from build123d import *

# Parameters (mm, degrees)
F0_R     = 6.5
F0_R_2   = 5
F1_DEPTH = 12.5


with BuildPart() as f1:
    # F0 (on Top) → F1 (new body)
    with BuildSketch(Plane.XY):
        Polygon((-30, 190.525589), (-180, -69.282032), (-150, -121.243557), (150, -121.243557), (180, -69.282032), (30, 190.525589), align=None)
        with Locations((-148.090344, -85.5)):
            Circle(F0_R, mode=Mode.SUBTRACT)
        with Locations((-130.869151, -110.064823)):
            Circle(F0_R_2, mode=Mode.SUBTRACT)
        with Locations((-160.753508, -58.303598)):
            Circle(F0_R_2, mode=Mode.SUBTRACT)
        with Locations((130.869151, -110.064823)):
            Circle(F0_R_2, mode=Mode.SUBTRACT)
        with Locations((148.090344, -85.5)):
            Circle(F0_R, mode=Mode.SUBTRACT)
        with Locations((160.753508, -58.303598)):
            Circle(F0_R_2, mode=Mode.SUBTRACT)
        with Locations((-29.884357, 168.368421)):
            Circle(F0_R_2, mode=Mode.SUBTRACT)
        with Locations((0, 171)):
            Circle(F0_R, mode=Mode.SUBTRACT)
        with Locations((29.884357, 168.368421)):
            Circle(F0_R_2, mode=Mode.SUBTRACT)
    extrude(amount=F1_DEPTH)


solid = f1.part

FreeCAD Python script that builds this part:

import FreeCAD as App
import Part
import Sketcher
Q = App.Units.Quantity

doc = App.newDocument("Part")
params = doc.addObject("Spreadsheet::Sheet", "Params")
for row, (alias, value) in enumerate([
    ("sketch1_diameter", "10 mm"),
    ("sketch1_diameter2", "13 mm"),
    ("sketch1_width", "300 mm"),
    ("sketch1_width2", "60 mm"),
    ("sketch1_length", "300 mm"),
    ("pad1_length", "12.5 mm"),
], start=1):
    params.set(f"A{row}", alias)
    params.set(f"B{row}", "=" + value)
    params.setAlias(f"B{row}", alias)

body = doc.addObject("PartDesign::Body", "Body")

# Sketch on XY plane
sketch1 = body.newObject("Sketcher::SketchObject", "Sketch")
sketch1.AttachmentSupport = (doc.getObject("XY_Plane"), [""])
sketch1.MapMode = "FlatFace"
sketch1.addGeometry([
    Part.LineSegment(App.Vector(-30, 190.525589, 0), App.Vector(-180, -69.282032, 0)),  # 0
    Part.LineSegment(App.Vector(-180, -69.282032, 0), App.Vector(-150, -121.243557, 0)),  # 1
    Part.LineSegment(App.Vector(-150, -121.243557, 0), App.Vector(150, -121.243557, 0)),  # 2
    Part.LineSegment(App.Vector(150, -121.243557, 0), App.Vector(180, -69.282032, 0)),  # 3
    Part.LineSegment(App.Vector(180, -69.282032, 0), App.Vector(30, 190.525589, 0)),  # 4
    Part.LineSegment(App.Vector(30, 190.525589, 0), App.Vector(-30, 190.525589, 0)),  # 5
    Part.Circle(App.Vector(-130.869151, -110.064823, 0), App.Vector(0, 0, 1), 5),  # 6
    Part.Circle(App.Vector(-148.090344, -85.5, 0), App.Vector(0, 0, 1), 6.5),  # 7
    Part.Circle(App.Vector(-160.753508, -58.303598, 0), App.Vector(0, 0, 1), 5),  # 8
    Part.Circle(App.Vector(130.869151, -110.064823, 0), App.Vector(0, 0, 1), 5),  # 9
    Part.Circle(App.Vector(148.090344, -85.5, 0), App.Vector(0, 0, 1), 6.5),  # 10
    Part.Circle(App.Vector(160.753508, -58.303598, 0), App.Vector(0, 0, 1), 5),  # 11
    Part.Circle(App.Vector(-29.884357, 168.368421, 0), App.Vector(0, 0, 1), 5),  # 12
    Part.Circle(App.Vector(0, 171, 0), App.Vector(0, 0, 1), 6.5),  # 13
    Part.Circle(App.Vector(29.884357, 168.368421, 0), App.Vector(0, 0, 1), 5),  # 14
], False)
sketch1.addConstraint([
    Sketcher.Constraint("Coincident", 0, 2, 1, 1),
    Sketcher.Constraint("Coincident", 1, 2, 2, 1),
    Sketcher.Constraint("Coincident", 2, 2, 3, 1),
    Sketcher.Constraint("Coincident", 3, 2, 4, 1),
    Sketcher.Constraint("Coincident", 4, 2, 5, 1),
    Sketcher.Constraint("Coincident", 5, 2, 0, 1),
    Sketcher.Constraint("Horizontal", 2),
    Sketcher.Constraint("Horizontal", 5),
    Sketcher.Constraint("Equal", 6, 8),
    Sketcher.Constraint("Equal", 8, 9),
    Sketcher.Constraint("Equal", 7, 10),
    Sketcher.Constraint("Equal", 9, 11),
    Sketcher.Constraint("Equal", 11, 12),
    Sketcher.Constraint("Equal", 10, 13),
    Sketcher.Constraint("Equal", 12, 14),
    Sketcher.Constraint("Symmetric", 6, 3, 9, 3, -2),
    Sketcher.Constraint("Symmetric", 7, 3, 10, 3, -2),
    Sketcher.Constraint("Symmetric", 8, 3, 11, 3, -2),
    Sketcher.Constraint("Symmetric", 12, 3, 14, 3, -2),
    Sketcher.Constraint("Symmetric", 0, 2, 3, 2, -2),
    Sketcher.Constraint("PointOnObject", 13, 3, -2),
    Sketcher.Constraint("Parallel", 0, 3),
    Sketcher.Constraint("Parallel", 1, 4),
    Sketcher.Constraint("Equal", 1, 3),
    Sketcher.Constraint("Diameter", 6, Q("10 mm")),
    Sketcher.Constraint("Diameter", 7, Q("13 mm")),
    Sketcher.Constraint("DistanceX", 2, 1, 2, 2, Q("300 mm")),
    Sketcher.Constraint("DistanceX", 5, 2, 5, 1, Q("60 mm")),
    Sketcher.Constraint("Angle", 0, Q("-120 deg")),
    Sketcher.Constraint("Distance", 0, Q("300 mm")),
    Sketcher.Constraint("DistanceY", -1, 1, 13, 3, Q("171 mm")),
    Sketcher.Constraint("DistanceY", 7, 3, -1, 1, Q("85.5 mm")),
    Sketcher.Constraint("DistanceY", 7, 3, 8, 3, Q("27.196402 mm")),
    Sketcher.Constraint("DistanceX", 6, 3, 9, 3, Q("261.738302 mm")),
    Sketcher.Constraint("DistanceX", 12, 3, 10, 3, Q("177.974701 mm")),
    Sketcher.Constraint("DistanceX", 8, 3, -1, 1, Q("160.753508 mm")),
    Sketcher.Constraint("DistanceY", -1, 1, 12, 3, Q("168.368421 mm")),
    Sketcher.Constraint("DistanceY", 0, 2, -1, 1, Q("69.282032 mm")),
    Sketcher.Constraint("DistanceX", 8, 3, 10, 3, Q("308.843852 mm")),
    Sketcher.Constraint("DistanceY", 6, 3, 0, 2, Q("40.782791 mm")),
])
sketch1.setExpression("Constraints[24]", "Params.sketch1_diameter")
sketch1.setExpression("Constraints[25]", "Params.sketch1_diameter2")
sketch1.setExpression("Constraints[26]", "Params.sketch1_width")
sketch1.setExpression("Constraints[27]", "Params.sketch1_width2")
sketch1.setExpression("Constraints[29]", "Params.sketch1_length")
pad1 = body.newObject("PartDesign::Pad", "Pad")
pad1.Profile = sketch1
pad1.setExpression("Length", "Params.pad1_length")

doc.recompute()
